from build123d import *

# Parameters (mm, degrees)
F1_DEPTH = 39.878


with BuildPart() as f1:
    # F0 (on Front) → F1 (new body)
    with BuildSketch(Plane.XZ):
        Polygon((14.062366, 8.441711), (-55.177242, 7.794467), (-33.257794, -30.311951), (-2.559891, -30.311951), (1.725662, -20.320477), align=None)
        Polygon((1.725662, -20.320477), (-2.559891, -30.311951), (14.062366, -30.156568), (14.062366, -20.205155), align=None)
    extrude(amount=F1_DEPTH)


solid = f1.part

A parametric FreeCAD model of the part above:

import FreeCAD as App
import Part
import Sketcher

doc = App.newDocument("Part")
params = doc.addObject("Spreadsheet::Sheet", "Params")
for row, (alias, value) in enumerate([
    ("pad1_length", "1.57 in"),
], start=1):
    params.set(f"A{row}", alias)
    params.set(f"B{row}", "=" + value)
    params.setAlias(f"B{row}", alias)

body = doc.addObject("PartDesign::Body", "Body")

sketch1 = doc.addObject("Sketcher::SketchObject", "Sketch")
body.addObject(sketch1)
sketch1.AttachmentSupport = (doc.XZ_Plane, [""])
sketch1.MapMode = "FlatFace"
sketch1.addGeometry(Part.LineSegment(App.Vector(14, 8, 0), App.Vector(-55, 8, 0)), False)
sketch1.addGeometry(Part.LineSegment(App.Vector(-55, 8, 0), App.Vector(-33, -30, 0)), False)
sketch1.addGeometry(Part.LineSegment(App.Vector(-33, -30, 0), App.Vector(-3, -30, 0)), False)
sketch1.addGeometry(Part.LineSegment(App.Vector(-3, -30, 0), App.Vector(14, -30, 0)), False)
sketch1.addGeometry(Part.LineSegment(App.Vector(14, -30, 0), App.Vector(14, -20, 0)), False)
sketch1.addGeometry(Part.LineSegment(App.Vector(14, -20, 0), App.Vector(2, -20, 0)), False)
sketch1.addGeometry(Part.LineSegment(App.Vector(2, -20, 0), App.Vector(14, 8, 0)), False)
sketch1.addConstraint(Sketcher.Constraint("Coincident", 0, 2, 1, 1))
sketch1.addConstraint(Sketcher.Constraint("Coincident", 1, 2, 2, 1))
sketch1.addConstraint(Sketcher.Constraint("Coincident", 2, 2, 3, 1))
sketch1.addConstraint(Sketcher.Constraint("Coincident", 3, 2, 4, 1))
sketch1.addConstraint(Sketcher.Constraint("Coincident", 4, 2, 5, 1))
sketch1.addConstraint(Sketcher.Constraint("Coincident", 5, 2, 6, 1))
sketch1.addConstraint(Sketcher.Constraint("Coincident", 6, 2, 0, 1))
sketch1.addConstraint(Sketcher.Constraint("Horizontal", 2))
sketch1.addConstraint(Sketcher.Constraint("Vertical", 4))
sketch1.addConstraint(Sketcher.Constraint("Parallel", 0, 3))
sketch1.addConstraint(Sketcher.Constraint("Parallel", 3, 5))
sketch1.addConstraint(Sketcher.Constraint("Vertical", 4, 2, 6, 2))
sketch1.addConstraint(Sketcher.Constraint("Distance", 6, 31.296289))
sketch1.addConstraint(Sketcher.Constraint("DistanceX", 2, 1, 2, 2, 30.697903))
sketch1.addConstraint(Sketcher.Constraint("DistanceY", 4, 1, 4, 2, 9.951413))
sketch1.addConstraint(Sketcher.Constraint("DistanceY", 1, 2, -1, 1, 30.311951))
sketch1.addConstraint(Sketcher.Constraint("DistanceX", 2, 2, -1, 1, 2.559891))
sketch1.addConstraint(Sketcher.Constraint("DistanceY", 3, 2, -1, 1, 30.156568))
sketch1.addConstraint(Sketcher.Constraint("DistanceY", -1, 1, 6, 2, 8.441711))
sketch1.addConstraint(Sketcher.Constraint("DistanceX", 0, 2, 1, 2, 21.919448))
sketch1.addConstraint(Sketcher.Constraint("DistanceX", 1, 2, 3, 2, 47.32016))
pad1 = doc.addObject("PartDesign::Pad", "Pad")
body.addObject(pad1)
pad1.Profile = sketch1
pad1.setExpression("Length", "Params.pad1_length")

doc.recompute()
